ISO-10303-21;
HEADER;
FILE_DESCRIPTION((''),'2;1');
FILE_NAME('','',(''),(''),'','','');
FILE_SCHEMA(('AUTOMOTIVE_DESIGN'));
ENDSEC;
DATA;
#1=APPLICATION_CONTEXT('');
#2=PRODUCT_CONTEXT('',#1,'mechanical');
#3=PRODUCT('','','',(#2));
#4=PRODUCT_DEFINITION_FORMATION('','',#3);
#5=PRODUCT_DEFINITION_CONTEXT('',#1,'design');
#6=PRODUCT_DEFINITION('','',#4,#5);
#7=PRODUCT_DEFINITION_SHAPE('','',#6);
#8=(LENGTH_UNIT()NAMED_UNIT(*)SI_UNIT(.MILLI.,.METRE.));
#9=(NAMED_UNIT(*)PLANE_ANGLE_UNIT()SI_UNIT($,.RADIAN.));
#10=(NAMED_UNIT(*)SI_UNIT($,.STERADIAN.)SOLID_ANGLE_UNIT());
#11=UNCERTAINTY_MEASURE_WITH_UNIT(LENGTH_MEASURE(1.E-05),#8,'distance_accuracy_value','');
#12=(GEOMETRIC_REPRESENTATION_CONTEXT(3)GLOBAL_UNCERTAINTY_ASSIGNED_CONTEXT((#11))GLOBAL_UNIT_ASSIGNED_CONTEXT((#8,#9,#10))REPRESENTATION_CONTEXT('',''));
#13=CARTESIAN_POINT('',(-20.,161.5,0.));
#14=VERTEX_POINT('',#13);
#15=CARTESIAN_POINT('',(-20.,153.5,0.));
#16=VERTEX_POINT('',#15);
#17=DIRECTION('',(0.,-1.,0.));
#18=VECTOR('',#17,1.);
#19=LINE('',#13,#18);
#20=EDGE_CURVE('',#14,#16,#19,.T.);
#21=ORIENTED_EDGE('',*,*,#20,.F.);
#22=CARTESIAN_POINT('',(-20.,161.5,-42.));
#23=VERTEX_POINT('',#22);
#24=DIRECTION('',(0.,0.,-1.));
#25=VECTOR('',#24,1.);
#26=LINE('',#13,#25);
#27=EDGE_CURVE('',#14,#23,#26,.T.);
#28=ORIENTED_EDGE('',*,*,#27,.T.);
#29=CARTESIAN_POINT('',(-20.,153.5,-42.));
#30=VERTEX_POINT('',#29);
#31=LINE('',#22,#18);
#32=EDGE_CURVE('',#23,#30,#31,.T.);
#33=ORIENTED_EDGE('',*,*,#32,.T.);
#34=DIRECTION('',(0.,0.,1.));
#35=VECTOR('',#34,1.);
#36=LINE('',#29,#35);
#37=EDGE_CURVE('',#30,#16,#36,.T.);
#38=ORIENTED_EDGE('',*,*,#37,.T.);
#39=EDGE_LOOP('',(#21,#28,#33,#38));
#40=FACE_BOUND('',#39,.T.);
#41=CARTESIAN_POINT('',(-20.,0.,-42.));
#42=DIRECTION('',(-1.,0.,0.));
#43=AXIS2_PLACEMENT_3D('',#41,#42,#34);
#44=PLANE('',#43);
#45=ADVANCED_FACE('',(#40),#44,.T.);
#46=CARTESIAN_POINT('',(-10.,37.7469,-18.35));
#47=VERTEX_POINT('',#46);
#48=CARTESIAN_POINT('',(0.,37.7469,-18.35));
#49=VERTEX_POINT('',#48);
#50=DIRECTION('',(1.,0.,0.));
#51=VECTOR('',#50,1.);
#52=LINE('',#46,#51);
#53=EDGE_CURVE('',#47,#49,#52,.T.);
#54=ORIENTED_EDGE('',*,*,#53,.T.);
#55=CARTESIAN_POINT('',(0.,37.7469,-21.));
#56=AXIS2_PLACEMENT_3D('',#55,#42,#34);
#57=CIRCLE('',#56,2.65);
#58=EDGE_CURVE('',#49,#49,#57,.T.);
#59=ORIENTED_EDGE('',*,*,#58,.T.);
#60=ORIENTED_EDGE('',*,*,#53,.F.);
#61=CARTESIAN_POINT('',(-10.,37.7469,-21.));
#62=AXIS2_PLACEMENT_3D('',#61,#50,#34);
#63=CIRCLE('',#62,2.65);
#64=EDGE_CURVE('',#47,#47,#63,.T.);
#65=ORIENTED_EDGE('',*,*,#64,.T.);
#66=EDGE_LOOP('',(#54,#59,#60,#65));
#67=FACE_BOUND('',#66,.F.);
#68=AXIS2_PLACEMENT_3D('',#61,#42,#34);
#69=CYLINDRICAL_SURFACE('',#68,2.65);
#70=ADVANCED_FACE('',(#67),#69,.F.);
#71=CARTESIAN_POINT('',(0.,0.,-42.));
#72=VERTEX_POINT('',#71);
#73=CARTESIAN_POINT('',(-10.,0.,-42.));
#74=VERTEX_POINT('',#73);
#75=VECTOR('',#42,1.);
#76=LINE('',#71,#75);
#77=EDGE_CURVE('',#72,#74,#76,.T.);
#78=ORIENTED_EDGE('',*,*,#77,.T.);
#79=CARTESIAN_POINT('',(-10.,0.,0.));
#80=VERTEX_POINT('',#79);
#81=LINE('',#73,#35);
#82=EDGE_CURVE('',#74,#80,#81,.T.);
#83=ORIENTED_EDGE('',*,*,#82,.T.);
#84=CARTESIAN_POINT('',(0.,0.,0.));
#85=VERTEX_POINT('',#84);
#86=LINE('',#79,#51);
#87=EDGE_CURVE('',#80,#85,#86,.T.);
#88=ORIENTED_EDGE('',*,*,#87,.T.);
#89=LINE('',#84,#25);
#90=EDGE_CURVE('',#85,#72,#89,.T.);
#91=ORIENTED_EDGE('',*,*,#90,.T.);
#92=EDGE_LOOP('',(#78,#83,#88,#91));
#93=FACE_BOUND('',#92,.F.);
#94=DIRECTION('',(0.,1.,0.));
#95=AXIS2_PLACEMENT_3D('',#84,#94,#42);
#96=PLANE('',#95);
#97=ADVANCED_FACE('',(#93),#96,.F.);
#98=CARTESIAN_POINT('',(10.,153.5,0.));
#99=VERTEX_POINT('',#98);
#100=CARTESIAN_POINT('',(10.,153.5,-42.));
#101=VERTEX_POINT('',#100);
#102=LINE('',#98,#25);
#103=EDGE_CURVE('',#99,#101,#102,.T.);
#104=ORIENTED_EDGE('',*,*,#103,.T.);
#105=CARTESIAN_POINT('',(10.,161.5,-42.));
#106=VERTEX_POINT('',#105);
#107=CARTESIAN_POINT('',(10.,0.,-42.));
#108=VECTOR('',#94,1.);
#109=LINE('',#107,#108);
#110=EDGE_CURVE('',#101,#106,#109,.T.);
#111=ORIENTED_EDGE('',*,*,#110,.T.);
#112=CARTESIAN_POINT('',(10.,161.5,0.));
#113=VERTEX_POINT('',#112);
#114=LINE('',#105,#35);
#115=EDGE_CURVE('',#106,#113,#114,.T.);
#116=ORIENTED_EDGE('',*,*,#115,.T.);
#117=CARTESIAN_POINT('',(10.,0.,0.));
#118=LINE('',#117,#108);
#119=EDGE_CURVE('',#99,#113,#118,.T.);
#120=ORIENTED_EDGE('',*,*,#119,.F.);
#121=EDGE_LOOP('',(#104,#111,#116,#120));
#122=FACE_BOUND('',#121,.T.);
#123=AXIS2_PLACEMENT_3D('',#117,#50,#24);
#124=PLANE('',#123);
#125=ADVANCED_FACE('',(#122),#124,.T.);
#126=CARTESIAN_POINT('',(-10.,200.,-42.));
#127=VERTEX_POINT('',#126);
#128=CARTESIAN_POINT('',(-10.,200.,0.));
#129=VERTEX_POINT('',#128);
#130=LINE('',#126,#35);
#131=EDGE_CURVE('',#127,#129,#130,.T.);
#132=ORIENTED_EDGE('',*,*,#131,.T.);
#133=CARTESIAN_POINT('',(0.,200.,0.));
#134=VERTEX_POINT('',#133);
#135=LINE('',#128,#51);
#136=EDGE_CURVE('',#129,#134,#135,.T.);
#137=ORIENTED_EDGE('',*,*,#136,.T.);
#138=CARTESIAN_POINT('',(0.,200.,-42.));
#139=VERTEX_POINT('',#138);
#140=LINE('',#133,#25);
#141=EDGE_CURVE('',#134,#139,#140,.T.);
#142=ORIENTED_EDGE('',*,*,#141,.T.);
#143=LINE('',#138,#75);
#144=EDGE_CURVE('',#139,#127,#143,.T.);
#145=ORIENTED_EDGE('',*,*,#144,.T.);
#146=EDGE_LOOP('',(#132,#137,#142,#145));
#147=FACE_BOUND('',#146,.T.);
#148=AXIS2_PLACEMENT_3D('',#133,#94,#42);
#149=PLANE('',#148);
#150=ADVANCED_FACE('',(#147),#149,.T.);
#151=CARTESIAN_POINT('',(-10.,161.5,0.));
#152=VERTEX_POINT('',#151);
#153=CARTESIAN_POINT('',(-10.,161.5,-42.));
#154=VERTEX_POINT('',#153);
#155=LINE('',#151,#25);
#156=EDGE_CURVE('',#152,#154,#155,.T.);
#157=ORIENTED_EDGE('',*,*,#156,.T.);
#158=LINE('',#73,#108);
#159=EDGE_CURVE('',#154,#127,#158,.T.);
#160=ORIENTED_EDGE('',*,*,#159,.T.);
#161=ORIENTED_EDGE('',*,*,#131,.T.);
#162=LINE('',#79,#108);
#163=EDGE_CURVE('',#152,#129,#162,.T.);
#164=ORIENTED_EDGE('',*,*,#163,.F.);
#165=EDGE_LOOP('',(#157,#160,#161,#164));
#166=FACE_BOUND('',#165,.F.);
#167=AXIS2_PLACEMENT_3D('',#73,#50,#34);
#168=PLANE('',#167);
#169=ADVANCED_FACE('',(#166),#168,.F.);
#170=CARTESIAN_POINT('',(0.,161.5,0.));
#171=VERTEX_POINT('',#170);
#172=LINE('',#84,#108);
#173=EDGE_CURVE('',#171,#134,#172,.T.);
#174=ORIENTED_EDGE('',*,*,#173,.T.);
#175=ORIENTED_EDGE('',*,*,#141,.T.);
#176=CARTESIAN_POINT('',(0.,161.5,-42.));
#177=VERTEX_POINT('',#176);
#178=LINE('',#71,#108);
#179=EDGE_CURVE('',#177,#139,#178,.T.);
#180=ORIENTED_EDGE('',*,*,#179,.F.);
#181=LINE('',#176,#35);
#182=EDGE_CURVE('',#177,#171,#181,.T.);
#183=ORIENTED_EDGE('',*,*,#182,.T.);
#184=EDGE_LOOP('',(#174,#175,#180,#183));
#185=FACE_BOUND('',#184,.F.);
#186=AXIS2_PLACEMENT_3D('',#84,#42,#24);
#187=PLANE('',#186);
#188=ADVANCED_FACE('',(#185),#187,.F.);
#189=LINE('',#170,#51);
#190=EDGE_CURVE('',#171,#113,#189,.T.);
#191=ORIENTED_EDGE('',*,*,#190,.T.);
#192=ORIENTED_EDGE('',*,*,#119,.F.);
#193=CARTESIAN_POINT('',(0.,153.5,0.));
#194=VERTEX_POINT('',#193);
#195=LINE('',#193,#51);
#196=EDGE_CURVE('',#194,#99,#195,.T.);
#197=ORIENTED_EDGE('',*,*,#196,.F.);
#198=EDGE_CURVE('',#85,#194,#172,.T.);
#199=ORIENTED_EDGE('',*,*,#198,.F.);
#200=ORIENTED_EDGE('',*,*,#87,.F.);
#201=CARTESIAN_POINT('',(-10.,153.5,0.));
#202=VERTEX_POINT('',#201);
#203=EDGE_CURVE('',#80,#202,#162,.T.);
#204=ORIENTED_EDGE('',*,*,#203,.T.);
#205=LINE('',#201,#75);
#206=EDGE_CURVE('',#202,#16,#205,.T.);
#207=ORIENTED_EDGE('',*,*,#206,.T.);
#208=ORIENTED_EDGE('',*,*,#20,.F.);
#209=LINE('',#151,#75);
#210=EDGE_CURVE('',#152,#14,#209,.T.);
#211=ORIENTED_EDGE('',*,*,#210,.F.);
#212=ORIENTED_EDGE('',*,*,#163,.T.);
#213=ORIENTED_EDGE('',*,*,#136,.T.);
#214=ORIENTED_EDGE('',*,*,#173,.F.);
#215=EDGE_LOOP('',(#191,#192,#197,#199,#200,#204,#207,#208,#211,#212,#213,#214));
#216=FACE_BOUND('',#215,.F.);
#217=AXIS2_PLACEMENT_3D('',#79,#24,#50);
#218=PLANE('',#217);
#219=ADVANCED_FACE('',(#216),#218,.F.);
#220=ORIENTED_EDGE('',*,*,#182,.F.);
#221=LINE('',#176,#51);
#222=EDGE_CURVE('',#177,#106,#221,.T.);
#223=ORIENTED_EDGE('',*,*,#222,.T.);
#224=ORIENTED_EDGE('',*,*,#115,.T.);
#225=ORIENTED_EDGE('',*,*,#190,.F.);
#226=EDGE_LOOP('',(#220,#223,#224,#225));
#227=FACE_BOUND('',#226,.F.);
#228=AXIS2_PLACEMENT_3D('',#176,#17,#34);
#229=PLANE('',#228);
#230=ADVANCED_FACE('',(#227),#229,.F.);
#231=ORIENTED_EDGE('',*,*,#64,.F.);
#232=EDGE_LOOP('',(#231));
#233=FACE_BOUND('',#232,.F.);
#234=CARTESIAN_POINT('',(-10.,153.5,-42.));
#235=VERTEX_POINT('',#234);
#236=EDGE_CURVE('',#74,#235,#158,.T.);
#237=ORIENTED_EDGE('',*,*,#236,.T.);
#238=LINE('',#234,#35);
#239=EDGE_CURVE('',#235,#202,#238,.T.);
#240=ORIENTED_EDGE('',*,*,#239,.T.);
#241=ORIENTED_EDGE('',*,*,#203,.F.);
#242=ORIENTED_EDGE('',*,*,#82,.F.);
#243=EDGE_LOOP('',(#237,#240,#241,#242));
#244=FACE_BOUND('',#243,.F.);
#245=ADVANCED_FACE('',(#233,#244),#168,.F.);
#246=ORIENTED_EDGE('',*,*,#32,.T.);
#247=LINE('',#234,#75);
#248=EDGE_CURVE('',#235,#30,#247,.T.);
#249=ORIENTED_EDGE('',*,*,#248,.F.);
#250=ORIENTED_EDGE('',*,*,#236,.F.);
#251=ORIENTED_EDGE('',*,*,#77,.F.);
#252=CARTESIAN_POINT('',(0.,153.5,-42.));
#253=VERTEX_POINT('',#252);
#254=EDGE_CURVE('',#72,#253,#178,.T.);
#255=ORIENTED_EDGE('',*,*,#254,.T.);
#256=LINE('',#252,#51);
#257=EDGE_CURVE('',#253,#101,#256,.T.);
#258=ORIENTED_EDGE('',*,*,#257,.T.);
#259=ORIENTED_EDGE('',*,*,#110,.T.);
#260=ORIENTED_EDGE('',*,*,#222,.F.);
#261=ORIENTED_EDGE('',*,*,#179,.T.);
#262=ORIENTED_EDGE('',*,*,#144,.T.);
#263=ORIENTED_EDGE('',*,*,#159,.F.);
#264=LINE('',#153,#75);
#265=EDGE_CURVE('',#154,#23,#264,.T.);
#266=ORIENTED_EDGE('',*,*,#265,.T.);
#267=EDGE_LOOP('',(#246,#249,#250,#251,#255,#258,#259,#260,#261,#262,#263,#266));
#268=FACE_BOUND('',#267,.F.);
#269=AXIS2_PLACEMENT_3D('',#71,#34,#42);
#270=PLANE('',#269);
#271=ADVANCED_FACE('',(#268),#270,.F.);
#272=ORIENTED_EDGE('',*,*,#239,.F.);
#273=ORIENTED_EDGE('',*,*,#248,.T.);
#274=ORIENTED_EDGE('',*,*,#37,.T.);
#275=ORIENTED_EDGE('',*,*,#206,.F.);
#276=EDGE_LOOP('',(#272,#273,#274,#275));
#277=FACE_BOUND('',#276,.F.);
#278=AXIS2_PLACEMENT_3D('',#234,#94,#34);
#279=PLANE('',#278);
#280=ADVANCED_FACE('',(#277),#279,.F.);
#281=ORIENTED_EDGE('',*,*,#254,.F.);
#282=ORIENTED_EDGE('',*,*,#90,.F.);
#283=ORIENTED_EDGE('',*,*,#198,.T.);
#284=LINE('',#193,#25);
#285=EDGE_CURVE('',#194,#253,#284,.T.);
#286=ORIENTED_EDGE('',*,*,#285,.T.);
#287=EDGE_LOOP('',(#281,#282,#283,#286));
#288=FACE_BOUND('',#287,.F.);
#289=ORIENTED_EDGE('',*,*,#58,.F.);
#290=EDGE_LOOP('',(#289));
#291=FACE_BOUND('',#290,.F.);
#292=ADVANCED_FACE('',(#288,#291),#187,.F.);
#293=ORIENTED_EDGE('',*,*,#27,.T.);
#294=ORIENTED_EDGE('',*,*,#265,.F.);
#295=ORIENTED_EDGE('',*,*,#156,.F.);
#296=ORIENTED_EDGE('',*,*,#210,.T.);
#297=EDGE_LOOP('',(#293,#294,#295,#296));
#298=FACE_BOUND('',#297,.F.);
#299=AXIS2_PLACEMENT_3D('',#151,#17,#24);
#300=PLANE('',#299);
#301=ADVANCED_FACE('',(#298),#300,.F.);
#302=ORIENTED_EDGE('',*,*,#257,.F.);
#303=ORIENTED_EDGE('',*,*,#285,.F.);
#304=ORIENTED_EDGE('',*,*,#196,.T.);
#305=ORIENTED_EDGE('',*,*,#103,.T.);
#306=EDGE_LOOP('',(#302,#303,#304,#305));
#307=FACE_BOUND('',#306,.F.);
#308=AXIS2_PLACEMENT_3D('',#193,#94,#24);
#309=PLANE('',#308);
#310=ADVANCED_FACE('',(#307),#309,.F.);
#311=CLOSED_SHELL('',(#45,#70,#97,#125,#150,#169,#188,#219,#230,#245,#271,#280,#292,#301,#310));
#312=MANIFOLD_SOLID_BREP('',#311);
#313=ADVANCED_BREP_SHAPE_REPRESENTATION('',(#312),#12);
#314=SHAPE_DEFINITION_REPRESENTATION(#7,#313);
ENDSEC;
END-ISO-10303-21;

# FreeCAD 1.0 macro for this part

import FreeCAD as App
import Part
import Sketcher
from FreeCAD import Vector


def add_polygon(sketch, points):
    """Adds a closed chain of lines whose ends are joined by coincident constraints."""
    first, n = sketch.GeometryCount, len(points)
    for a, b in zip(points, points[1:] + points[:1]):
        sketch.addGeometry(Part.LineSegment(App.Vector(*a, 0), App.Vector(*b, 0)), False)
    for i in range(n):
        sketch.addConstraint(Sketcher.Constraint("Coincident", first + i, 2, first + (i + 1) % n, 1))

doc = App.newDocument("Part")
body = doc.addObject("PartDesign::Body", "Body")

# Sketch on XZ plane
sketch1 = body.newObject("Sketcher::SketchObject", "Sketch")
sketch1.AttachmentSupport = (doc.getObject("XZ_Plane"), [""])
sketch1.MapMode = "FlatFace"
add_polygon(sketch1, [(-10, 0), (0, 0), (0, -42), (-10, -42)])  # lines 0-3
sketch1.addConstraint([
    Sketcher.Constraint("Horizontal", 0),
    Sketcher.Constraint("Vertical", 1),
    Sketcher.Constraint("Horizontal", 2),
    Sketcher.Constraint("Vertical", 3),
    Sketcher.Constraint("Coincident", 0, 2, -1, 1),
    Sketcher.Constraint("DistanceX", 0, 1, 0, 2, 10.0),
    Sketcher.Constraint("DistanceY", 1, 2, 1, 1, 42.0),
])
pad1 = body.newObject("PartDesign::Pad", "Pad")
pad1.Profile = sketch1
pad1.Length = 200
pad1.Reversed = True

# Sketch on YZ plane
sketch2 = body.newObject("Sketcher::SketchObject", "Sketch001")
sketch2.AttachmentSupport = (doc.getObject("YZ_Plane"), [""])
sketch2.MapMode = "FlatFace"
add_polygon(sketch2, [(153.5, -42), (161.5, -42), (161.5, 0), (153.5, 0)])  # lines 0-3
sketch2.addConstraint([
    Sketcher.Constraint("Horizontal", 0),
    Sketcher.Constraint("Vertical", 1),
    Sketcher.Constraint("Horizontal", 2),
    Sketcher.Constraint("Vertical", 3),
    Sketcher.Constraint("PointOnObject", 1, 2, -1),
    Sketcher.Constraint("DistanceX", 0, 1, 0, 2, 8.0),
    Sketcher.Constraint("DistanceY", 1, 1, 1, 2, 42.0),
    Sketcher.Constraint("DistanceX", -1, 1, 0, 2, 161.5),
])
pad2 = body.newObject("PartDesign::Pad", "Pad001")
pad2.Profile = sketch2
pad2.Length = 10

# Sketch on YZ plane
sketch3 = body.newObject("Sketcher::SketchObject", "Sketch002")
sketch3.AttachmentSupport = (doc.getObject("YZ_Plane"), [""])
sketch3.MapMode = "FlatFace"
sketch3.AttachmentOffset = App.Placement(Vector(0, 0, -10), App.Rotation())
add_polygon(sketch3, [(153.5, 0), (161.5, 0), (161.5, -42), (153.5, -42)])  # lines 0-3
sketch3.addConstraint([
    Sketcher.Constraint("Horizontal", 0),
    Sketcher.Constraint("Vertical", 1),
    Sketcher.Constraint("Horizontal", 2),
    Sketcher.Constraint("Vertical", 3),
    Sketcher.Constraint("PointOnObject", 0, 2, -1),
    Sketcher.Constraint("DistanceX", 0, 1, 0, 2, 8.0),
    Sketcher.Constraint("DistanceY", 1, 2, 1, 1, 42.0),
    Sketcher.Constraint("DistanceX", -1, 1, 0, 2, 161.5),
])
pad3 = body.newObject("PartDesign::Pad", "Pad002")
pad3.Profile = sketch3
pad3.Length = 10
pad3.Reversed = True

# Sketch on YZ plane
sketch4 = body.newObject("Sketcher::SketchObject", "Sketch003")
sketch4.AttachmentSupport = (doc.getObject("YZ_Plane"), [""])
sketch4.MapMode = "FlatFace"
sketch4.AttachmentOffset = App.Placement(Vector(0, 0, -10), App.Rotation())
sketch4.addGeometry(Part.Circle(Vector(37.7469, -21, 0), Vector(0, 0, 1), 2.65), False)
sketch4.addConstraint([
    Sketcher.Constraint("Diameter", 0, 5.3),
    Sketcher.Constraint("DistanceY", 0, 3, -1, 1, 21.0),
    Sketcher.Constraint("DistanceX", -1, 1, 0, 3, 37.747),
])
pocket1 = body.newObject("PartDesign::Pocket", "Pocket")
pocket1.Profile = sketch4
pocket1.Length = 10
pocket1.Reversed = True

doc.recompute()
